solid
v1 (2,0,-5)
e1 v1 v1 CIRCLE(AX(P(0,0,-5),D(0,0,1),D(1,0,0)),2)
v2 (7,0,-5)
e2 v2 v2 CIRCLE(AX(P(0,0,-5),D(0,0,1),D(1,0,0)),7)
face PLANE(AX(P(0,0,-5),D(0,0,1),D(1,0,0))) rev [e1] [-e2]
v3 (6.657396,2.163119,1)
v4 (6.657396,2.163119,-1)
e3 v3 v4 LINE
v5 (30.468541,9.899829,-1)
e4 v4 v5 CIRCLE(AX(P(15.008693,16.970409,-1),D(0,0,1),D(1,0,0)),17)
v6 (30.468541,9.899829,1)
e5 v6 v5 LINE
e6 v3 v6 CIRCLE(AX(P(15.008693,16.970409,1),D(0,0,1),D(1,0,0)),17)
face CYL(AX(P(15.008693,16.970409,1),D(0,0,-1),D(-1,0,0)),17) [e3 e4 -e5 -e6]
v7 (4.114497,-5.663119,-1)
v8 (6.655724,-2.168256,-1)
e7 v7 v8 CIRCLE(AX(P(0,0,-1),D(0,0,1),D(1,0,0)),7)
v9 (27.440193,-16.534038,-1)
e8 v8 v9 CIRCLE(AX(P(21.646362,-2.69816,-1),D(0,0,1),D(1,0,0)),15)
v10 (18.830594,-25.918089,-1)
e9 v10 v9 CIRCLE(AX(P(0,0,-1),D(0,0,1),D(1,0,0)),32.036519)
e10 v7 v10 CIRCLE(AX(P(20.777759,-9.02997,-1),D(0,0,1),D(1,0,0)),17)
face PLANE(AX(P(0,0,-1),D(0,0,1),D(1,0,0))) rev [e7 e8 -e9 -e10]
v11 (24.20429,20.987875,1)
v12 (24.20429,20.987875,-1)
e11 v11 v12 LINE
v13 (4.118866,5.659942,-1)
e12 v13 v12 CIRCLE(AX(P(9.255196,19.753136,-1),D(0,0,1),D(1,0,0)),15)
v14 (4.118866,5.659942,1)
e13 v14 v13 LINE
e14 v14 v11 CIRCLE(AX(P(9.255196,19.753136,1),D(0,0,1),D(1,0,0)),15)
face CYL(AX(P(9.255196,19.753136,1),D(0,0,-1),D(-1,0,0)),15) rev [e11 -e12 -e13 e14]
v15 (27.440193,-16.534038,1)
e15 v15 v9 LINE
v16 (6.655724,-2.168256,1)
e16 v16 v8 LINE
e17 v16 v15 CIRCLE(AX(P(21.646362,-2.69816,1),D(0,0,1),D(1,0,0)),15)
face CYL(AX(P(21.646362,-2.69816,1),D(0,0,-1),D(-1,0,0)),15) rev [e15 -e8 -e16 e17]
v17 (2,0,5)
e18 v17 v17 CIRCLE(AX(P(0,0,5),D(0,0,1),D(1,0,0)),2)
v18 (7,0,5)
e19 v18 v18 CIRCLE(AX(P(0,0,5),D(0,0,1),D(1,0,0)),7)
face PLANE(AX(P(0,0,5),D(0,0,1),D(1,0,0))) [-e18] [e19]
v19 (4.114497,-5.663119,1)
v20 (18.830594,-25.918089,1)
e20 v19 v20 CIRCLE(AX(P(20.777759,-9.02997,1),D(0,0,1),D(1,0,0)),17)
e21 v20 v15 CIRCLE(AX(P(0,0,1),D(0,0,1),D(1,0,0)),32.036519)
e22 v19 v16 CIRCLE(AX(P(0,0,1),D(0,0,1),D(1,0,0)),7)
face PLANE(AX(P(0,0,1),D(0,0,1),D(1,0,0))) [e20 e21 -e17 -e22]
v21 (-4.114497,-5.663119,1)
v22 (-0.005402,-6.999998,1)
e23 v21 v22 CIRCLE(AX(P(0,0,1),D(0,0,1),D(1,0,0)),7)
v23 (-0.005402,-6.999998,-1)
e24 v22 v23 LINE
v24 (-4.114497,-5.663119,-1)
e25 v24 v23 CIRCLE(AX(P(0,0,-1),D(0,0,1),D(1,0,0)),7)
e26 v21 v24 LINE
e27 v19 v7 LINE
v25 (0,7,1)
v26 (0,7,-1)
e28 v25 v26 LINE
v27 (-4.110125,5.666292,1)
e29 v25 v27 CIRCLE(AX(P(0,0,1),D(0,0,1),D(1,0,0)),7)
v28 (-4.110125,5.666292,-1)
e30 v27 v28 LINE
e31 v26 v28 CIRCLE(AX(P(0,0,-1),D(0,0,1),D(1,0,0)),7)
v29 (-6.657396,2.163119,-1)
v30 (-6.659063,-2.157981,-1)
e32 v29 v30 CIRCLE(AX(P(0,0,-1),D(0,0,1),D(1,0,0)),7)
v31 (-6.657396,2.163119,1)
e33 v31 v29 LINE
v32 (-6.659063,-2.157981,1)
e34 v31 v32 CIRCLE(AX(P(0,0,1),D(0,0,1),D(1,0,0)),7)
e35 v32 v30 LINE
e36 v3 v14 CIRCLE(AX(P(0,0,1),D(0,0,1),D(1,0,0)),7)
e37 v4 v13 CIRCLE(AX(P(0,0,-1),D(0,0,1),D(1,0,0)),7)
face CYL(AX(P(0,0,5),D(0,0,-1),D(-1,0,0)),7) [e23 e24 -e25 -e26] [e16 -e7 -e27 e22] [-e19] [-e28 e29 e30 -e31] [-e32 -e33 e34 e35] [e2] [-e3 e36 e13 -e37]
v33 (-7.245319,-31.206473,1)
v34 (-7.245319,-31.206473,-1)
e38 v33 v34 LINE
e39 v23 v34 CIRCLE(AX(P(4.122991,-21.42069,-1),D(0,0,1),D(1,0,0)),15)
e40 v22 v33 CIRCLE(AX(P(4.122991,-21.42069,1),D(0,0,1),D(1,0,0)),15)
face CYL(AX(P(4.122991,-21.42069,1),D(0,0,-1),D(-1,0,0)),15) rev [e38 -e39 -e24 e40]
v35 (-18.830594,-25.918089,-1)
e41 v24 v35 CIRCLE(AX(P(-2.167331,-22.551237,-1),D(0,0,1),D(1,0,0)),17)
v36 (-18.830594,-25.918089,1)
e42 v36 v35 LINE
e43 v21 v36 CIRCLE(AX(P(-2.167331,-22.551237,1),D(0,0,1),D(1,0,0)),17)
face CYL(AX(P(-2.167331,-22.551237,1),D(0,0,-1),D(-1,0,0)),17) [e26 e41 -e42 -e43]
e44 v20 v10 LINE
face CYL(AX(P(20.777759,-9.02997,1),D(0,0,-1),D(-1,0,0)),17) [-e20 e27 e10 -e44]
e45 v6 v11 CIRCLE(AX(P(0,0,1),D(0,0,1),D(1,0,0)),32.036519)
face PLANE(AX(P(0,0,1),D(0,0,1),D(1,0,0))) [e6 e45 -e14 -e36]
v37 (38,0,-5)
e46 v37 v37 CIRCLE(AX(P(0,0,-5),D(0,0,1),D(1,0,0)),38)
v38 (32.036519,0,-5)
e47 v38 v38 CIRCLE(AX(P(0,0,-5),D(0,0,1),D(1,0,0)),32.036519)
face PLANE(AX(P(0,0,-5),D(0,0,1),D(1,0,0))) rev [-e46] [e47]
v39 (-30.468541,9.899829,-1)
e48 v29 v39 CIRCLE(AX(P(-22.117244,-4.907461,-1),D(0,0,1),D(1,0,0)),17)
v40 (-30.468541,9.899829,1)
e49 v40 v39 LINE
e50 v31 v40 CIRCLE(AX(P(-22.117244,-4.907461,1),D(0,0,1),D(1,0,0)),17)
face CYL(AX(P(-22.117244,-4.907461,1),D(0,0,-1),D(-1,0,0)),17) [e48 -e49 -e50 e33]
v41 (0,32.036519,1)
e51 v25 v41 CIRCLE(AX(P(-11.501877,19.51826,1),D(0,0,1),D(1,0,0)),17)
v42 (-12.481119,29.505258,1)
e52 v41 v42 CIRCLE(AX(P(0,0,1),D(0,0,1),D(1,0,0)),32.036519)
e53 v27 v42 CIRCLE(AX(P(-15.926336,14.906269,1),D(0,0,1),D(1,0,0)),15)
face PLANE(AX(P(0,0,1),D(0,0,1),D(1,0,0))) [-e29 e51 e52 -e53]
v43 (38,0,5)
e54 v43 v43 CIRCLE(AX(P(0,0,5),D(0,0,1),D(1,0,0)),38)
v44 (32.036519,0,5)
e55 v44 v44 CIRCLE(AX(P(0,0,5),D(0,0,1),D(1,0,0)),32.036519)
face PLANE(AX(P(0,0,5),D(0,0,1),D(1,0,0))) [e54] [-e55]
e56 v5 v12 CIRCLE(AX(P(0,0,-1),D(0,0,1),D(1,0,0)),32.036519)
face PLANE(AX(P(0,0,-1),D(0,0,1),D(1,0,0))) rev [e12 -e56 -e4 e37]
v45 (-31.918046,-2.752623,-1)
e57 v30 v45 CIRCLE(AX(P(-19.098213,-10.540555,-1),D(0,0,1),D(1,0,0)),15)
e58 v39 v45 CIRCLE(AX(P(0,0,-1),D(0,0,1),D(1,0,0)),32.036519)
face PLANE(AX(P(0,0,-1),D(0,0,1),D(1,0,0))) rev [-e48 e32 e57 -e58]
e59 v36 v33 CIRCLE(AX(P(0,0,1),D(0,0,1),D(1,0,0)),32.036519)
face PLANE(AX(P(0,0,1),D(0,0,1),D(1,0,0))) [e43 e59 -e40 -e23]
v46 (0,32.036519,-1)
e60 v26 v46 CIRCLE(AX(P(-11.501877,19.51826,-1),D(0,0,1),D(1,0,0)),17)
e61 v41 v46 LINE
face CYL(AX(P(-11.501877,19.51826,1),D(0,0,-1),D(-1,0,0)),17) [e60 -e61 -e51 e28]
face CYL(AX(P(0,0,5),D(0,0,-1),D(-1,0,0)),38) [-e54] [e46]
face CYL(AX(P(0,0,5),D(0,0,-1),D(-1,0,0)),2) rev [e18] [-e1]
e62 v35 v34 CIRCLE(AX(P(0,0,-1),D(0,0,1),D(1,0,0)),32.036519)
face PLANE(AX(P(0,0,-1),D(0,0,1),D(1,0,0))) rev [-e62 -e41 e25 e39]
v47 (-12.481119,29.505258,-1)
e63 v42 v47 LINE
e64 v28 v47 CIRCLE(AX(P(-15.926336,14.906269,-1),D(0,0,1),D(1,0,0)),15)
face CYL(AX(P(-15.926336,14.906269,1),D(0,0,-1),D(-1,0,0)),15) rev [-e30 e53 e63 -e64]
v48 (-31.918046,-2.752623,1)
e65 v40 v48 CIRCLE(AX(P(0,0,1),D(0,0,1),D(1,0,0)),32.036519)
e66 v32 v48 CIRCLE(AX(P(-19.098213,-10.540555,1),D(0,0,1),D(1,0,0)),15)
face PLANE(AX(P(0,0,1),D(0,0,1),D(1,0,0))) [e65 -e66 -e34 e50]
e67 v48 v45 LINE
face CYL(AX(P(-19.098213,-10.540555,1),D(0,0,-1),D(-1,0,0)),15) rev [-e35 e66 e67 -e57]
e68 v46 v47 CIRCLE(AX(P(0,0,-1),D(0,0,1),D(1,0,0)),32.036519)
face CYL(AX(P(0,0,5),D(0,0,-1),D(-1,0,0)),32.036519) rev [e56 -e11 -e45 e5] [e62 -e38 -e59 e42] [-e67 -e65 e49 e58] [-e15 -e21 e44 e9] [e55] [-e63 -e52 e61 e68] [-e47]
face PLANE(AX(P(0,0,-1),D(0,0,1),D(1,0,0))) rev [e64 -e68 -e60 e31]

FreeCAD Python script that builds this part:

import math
import FreeCAD as App
import Part
import Sketcher

V = App.Vector
Q = App.Units.Quantity

doc = App.newDocument("Part")
params = doc.addObject("Spreadsheet::Sheet", "Params")
for row, (alias, value) in enumerate([
    ("sketch1_diameter", "14 mm"),
    ("sketch1_diameter2", "4 mm"),
    ("pad1_length", "10 mm"),
    ("sketch2_diameter", "76 mm"),
    ("pad2_length", "10 mm"),
    ("sketch3_radius", "7 mm"),
    ("sketch3_radius2", "17 mm"),
    ("sketch3_radius3", "15 mm"),
    ("pad3_length", "2 mm"),
], start=1):
    params.set(f"A{row}", alias)
    params.set(f"B{row}", "=" + value)
    params.setAlias(f"B{row}", alias)

body = doc.addObject("PartDesign::Body", "Body")

sketch1 = doc.addObject("Sketcher::SketchObject", "Sketch")
body.addObject(sketch1)
sketch1.AttachmentSupport = (doc.XY_Plane, [""])
sketch1.MapMode = "FlatFace"
sketch1.addGeometry([
    Part.Circle(V(0, 0, 0), V(0, 0, 1), 7),
    Part.Circle(V(0, 0, 0), V(0, 0, 1), 2),
], False)
sketch1.addConstraint([
    Sketcher.Constraint("Coincident", 0, 3, -1, 1),
    Sketcher.Constraint("Coincident", 1, 3, -1, 1),
    Sketcher.Constraint("Diameter", 0, Q("14 mm")),
    Sketcher.Constraint("Diameter", 1, Q("4 mm")),
])
sketch1.setExpression("Constraints[2]", "Params.sketch1_diameter")
sketch1.setExpression("Constraints[3]", "Params.sketch1_diameter2")
pad1 = doc.addObject("PartDesign::Pad", "Pad")
body.addObject(pad1)
pad1.Profile = sketch1
pad1.setExpression("Length", "Params.pad1_length")
pad1.Midplane = True
body2 = doc.addObject("PartDesign::Body", "Body001")

sketch2 = doc.addObject("Sketcher::SketchObject", "Sketch001")
body2.addObject(sketch2)
sketch2.AttachmentSupport = (doc.getObject("XY_Plane001"), [""])
sketch2.MapMode = "FlatFace"
sketch2.addGeometry([
    Part.Circle(V(0, 0, 0), V(0, 0, 1), 38),
    Part.Circle(V(0, 0, 0), V(0, 0, 1), 32),
], False)
sketch2.addConstraint([
    Sketcher.Constraint("Coincident", 0, 3, -1, 1),
    Sketcher.Constraint("Coincident", 1, 3, -1, 1),
    Sketcher.Constraint("Diameter", 0, Q("76 mm")),
    Sketcher.Constraint("Diameter", 1, Q("64.073039 mm")),
])
sketch2.setExpression("Constraints[2]", "Params.sketch2_diameter")
pad2 = doc.addObject("PartDesign::Pad", "Pad001")
body2.addObject(pad2)
pad2.Profile = sketch2
pad2.setExpression("Length", "Params.pad2_length")
pad2.Midplane = True
body.AllowCompound = True
doc.recompute()

boolean = doc.addObject("PartDesign::Boolean", "Boolean")
body.addObject(boolean)
boolean.Type = "Fuse"
boolean.addObjects([body2])

sketch3 = doc.addObject("Sketcher::SketchObject", "Sketch002")
body.addObject(sketch3)
sketch3.AttachmentSupport = (doc.XY_Plane, [""])
sketch3.MapMode = "FlatFace"
sketch3.addGeometry([
    Part.ArcOfCircle(Part.Circle(V(0, 0, 0), V(0, 0, 1), 7), math.radians(162), math.radians(198)),
    Part.ArcOfCircle(Part.Circle(V(-22.1, -4.9, 0), V(0, 0, 1), 17), math.radians(25), math.radians(119)),
    Part.ArcOfCircle(Part.Circle(V(0, 0, 0), V(0, 0, 1), 32), math.radians(162), math.radians(185)),
    Part.ArcOfCircle(Part.Circle(V(-19.1, -10.5, 0), V(0, 0, 1), 15), math.radians(34), math.radians(149)),
    Part.ArcOfCircle(Part.Circle(V(0, 0, 0), V(0, 0, 1), 7), math.radians(90), math.radians(126)),
    Part.ArcOfCircle(Part.Circle(V(-11.5, 19.5, 0), V(0, 0, 1), 17), math.radians(-47), math.radians(47)),
    Part.ArcOfCircle(Part.Circle(V(0, 0, 0), V(0, 0, 1), 32), math.radians(90), math.radians(113)),
    Part.ArcOfCircle(Part.Circle(V(-15.9, 14.9, 0), V(0, 0, 1), 15), math.radians(-38), math.radians(77)),
    Part.ArcOfCircle(Part.Circle(V(0, 0, 0), V(0, 0, 1), 7), math.radians(18), math.radians(54)),
    Part.ArcOfCircle(Part.Circle(V(15, 17, 0), V(0, 0, 1), 17), math.radians(-119), math.radians(-25)),
    Part.ArcOfCircle(Part.Circle(V(0, 0, 0), V(0, 0, 1), 32), math.radians(18), math.radians(41)),
    Part.ArcOfCircle(Part.Circle(V(9.3, 19.8, 0), V(0, 0, 1), 15), math.radians(-110), math.radians(5)),
    Part.ArcOfCircle(Part.Circle(V(21.6, -2.7, 0), V(0, 0, 1), 15), math.radians(178), math.radians(293)),
    Part.ArcOfCircle(Part.Circle(V(0, 0, 0), V(0, 0, 1), 7), math.radians(-54), math.radians(-18)),
    Part.ArcOfCircle(Part.Circle(V(20.8, -9, 0), V(0, 0, 1), 17), math.radians(169), math.radians(263)),
    Part.ArcOfCircle(Part.Circle(V(0, 0, 0), V(0, 0, 1), 32), math.radians(-54), math.radians(-31)),
    Part.ArcOfCircle(Part.Circle(V(4.1, -21.4, 0), V(0, 0, 1), 15), math.radians(106), math.radians(221)),
    Part.ArcOfCircle(Part.Circle(V(0, 0, 0), V(0, 0, 1), 7), math.radians(-126), math.radians(-90)),
    Part.ArcOfCircle(Part.Circle(V(-2.2, -22.6, 0), V(0, 0, 1), 17), math.radians(97), math.radians(191)),
    Part.ArcOfCircle(Part.Circle(V(0, 0, 0), V(0, 0, 1), 32), math.radians(-126), math.radians(-103)),
], False)
sketch3.addConstraint([
    Sketcher.Constraint("Coincident", 0, 1, 1, 1),
    Sketcher.Constraint("Coincident", 1, 2, 2, 1),
    Sketcher.Constraint("Coincident", 2, 2, 3, 2),
    Sketcher.Constraint("Coincident", 3, 1, 0, 2),
    Sketcher.Constraint("Coincident", 4, 1, 5, 1),
    Sketcher.Constraint("Coincident", 5, 2, 6, 1),
    Sketcher.Constraint("Coincident", 6, 2, 7, 2),
    Sketcher.Constraint("Coincident", 7, 1, 4, 2),
    Sketcher.Constraint("Coincident", 8, 1, 9, 1),
    Sketcher.Constraint("Coincident", 9, 2, 10, 1),
    Sketcher.Constraint("Coincident", 10, 2, 11, 2),
    Sketcher.Constraint("Coincident", 11, 1, 8, 2),
    Sketcher.Constraint("Coincident", 12, 1, 13, 2),
    Sketcher.Constraint("Coincident", 13, 1, 14, 1),
    Sketcher.Constraint("Coincident", 14, 2, 15, 1),
    Sketcher.Constraint("Coincident", 15, 2, 12, 2),
    Sketcher.Constraint("Coincident", 16, 1, 17, 2),
    Sketcher.Constraint("Coincident", 17, 1, 18, 1),
    Sketcher.Constraint("Coincident", 18, 2, 19, 1),
    Sketcher.Constraint("Coincident", 19, 2, 16, 2),
    Sketcher.Constraint("Coincident", 0, 3, -1, 1),
    Sketcher.Constraint("Coincident", 2, 3, -1, 1),
    Sketcher.Constraint("Coincident", 4, 3, -1, 1),
    Sketcher.Constraint("Coincident", 6, 3, -1, 1),
    Sketcher.Constraint("Coincident", 8, 3, -1, 1),
    Sketcher.Constraint("Coincident", 10, 3, -1, 1),
    Sketcher.Constraint("Coincident", 13, 3, -1, 1),
    Sketcher.Constraint("Coincident", 15, 3, -1, 1),
    Sketcher.Constraint("Coincident", 17, 3, -1, 1),
    Sketcher.Constraint("Coincident", 19, 3, -1, 1),
    Sketcher.Constraint("Equal", 0, 4),
    Sketcher.Constraint("Equal", 1, 5),
    Sketcher.Constraint("Equal", 2, 6),
    Sketcher.Constraint("Equal", 3, 7),
    Sketcher.Constraint("Equal", 4, 8),
    Sketcher.Constraint("Equal", 5, 9),
    Sketcher.Constraint("Equal", 6, 10),
    Sketcher.Constraint("Equal", 7, 11),
    Sketcher.Constraint("Equal", 11, 12),
    Sketcher.Constraint("Equal", 8, 13),
    Sketcher.Constraint("Equal", 9, 14),
    Sketcher.Constraint("Equal", 10, 15),
    Sketcher.Constraint("Equal", 12, 16),
    Sketcher.Constraint("Equal", 13, 17),
    Sketcher.Constraint("Equal", 14, 18),
    Sketcher.Constraint("Equal", 15, 19),
    Sketcher.Constraint("PointOnObject", 4, 1, -2),
    Sketcher.Constraint("PointOnObject", 5, 2, -2),
    Sketcher.Constraint("Horizontal", 0, 1, 8, 1),
    Sketcher.Constraint("Horizontal", 1, 2, 9, 2),
    Sketcher.Constraint("Horizontal", 13, 1, 17, 1),
    Sketcher.Constraint("Horizontal", 14, 2, 18, 2),
    Sketcher.Constraint("Radius", 0, Q("7 mm")),
    Sketcher.Constraint("Radius", 1, Q("17 mm")),
    Sketcher.Constraint("Radius", 3, Q("15 mm")),
    Sketcher.Constraint("Radius", 2, Q("32.036519 mm")),
    Sketcher.Constraint("DistanceY", 5, 3, 6, 2, Q("9.986998 mm")),
    Sketcher.Constraint("DistanceX", 16, 1, -1, 1, Q("0.005402 mm")),
    Sketcher.Constraint("DistanceY", 3, 1, 0, 1, Q("4.3211 mm")),
    Sketcher.Constraint("DistanceY", 14, 3, 9, 2, Q("18.929799 mm")),
    Sketcher.Constraint("DistanceY", 14, 2, 16, 3, Q("4.497398 mm")),
    Sketcher.Constraint("DistanceX", 14, 2, 15, 2, Q("8.609599 mm")),
    Sketcher.Constraint("DistanceX", 16, 3, 15, 2, Q("23.317201 mm")),
    Sketcher.Constraint("DistanceX", 16, 1, 13, 1, Q("4.119899 mm")),
    Sketcher.Constraint("DistanceY", 1, 3, -1, 1, Q("4.907461 mm")),
    Sketcher.Constraint("DistanceY", -1, 1, 7, 3, Q("14.906269 mm")),
    Sketcher.Constraint("DistanceX", -1, 1, 12, 3, Q("21.646362 mm")),
    Sketcher.Constraint("DistanceX", -1, 1, 10, 2, Q("24.20429 mm")),
    Sketcher.Constraint("DistanceX", 1, 3, 3, 3, Q("3.019031 mm")),
    Sketcher.Constraint("DistanceY", 11, 3, 10, 2, Q("1.234739 mm")),
])
sketch3.setExpression("Constraints[52]", "Params.sketch3_radius")
sketch3.setExpression("Constraints[53]", "Params.sketch3_radius2")
sketch3.setExpression("Constraints[54]", "Params.sketch3_radius3")
pad3 = doc.addObject("PartDesign::Pad", "Pad002")
body.addObject(pad3)
pad3.Profile = sketch3
pad3.setExpression("Length", "Params.pad3_length")
pad3.Midplane = True

doc.recompute()
